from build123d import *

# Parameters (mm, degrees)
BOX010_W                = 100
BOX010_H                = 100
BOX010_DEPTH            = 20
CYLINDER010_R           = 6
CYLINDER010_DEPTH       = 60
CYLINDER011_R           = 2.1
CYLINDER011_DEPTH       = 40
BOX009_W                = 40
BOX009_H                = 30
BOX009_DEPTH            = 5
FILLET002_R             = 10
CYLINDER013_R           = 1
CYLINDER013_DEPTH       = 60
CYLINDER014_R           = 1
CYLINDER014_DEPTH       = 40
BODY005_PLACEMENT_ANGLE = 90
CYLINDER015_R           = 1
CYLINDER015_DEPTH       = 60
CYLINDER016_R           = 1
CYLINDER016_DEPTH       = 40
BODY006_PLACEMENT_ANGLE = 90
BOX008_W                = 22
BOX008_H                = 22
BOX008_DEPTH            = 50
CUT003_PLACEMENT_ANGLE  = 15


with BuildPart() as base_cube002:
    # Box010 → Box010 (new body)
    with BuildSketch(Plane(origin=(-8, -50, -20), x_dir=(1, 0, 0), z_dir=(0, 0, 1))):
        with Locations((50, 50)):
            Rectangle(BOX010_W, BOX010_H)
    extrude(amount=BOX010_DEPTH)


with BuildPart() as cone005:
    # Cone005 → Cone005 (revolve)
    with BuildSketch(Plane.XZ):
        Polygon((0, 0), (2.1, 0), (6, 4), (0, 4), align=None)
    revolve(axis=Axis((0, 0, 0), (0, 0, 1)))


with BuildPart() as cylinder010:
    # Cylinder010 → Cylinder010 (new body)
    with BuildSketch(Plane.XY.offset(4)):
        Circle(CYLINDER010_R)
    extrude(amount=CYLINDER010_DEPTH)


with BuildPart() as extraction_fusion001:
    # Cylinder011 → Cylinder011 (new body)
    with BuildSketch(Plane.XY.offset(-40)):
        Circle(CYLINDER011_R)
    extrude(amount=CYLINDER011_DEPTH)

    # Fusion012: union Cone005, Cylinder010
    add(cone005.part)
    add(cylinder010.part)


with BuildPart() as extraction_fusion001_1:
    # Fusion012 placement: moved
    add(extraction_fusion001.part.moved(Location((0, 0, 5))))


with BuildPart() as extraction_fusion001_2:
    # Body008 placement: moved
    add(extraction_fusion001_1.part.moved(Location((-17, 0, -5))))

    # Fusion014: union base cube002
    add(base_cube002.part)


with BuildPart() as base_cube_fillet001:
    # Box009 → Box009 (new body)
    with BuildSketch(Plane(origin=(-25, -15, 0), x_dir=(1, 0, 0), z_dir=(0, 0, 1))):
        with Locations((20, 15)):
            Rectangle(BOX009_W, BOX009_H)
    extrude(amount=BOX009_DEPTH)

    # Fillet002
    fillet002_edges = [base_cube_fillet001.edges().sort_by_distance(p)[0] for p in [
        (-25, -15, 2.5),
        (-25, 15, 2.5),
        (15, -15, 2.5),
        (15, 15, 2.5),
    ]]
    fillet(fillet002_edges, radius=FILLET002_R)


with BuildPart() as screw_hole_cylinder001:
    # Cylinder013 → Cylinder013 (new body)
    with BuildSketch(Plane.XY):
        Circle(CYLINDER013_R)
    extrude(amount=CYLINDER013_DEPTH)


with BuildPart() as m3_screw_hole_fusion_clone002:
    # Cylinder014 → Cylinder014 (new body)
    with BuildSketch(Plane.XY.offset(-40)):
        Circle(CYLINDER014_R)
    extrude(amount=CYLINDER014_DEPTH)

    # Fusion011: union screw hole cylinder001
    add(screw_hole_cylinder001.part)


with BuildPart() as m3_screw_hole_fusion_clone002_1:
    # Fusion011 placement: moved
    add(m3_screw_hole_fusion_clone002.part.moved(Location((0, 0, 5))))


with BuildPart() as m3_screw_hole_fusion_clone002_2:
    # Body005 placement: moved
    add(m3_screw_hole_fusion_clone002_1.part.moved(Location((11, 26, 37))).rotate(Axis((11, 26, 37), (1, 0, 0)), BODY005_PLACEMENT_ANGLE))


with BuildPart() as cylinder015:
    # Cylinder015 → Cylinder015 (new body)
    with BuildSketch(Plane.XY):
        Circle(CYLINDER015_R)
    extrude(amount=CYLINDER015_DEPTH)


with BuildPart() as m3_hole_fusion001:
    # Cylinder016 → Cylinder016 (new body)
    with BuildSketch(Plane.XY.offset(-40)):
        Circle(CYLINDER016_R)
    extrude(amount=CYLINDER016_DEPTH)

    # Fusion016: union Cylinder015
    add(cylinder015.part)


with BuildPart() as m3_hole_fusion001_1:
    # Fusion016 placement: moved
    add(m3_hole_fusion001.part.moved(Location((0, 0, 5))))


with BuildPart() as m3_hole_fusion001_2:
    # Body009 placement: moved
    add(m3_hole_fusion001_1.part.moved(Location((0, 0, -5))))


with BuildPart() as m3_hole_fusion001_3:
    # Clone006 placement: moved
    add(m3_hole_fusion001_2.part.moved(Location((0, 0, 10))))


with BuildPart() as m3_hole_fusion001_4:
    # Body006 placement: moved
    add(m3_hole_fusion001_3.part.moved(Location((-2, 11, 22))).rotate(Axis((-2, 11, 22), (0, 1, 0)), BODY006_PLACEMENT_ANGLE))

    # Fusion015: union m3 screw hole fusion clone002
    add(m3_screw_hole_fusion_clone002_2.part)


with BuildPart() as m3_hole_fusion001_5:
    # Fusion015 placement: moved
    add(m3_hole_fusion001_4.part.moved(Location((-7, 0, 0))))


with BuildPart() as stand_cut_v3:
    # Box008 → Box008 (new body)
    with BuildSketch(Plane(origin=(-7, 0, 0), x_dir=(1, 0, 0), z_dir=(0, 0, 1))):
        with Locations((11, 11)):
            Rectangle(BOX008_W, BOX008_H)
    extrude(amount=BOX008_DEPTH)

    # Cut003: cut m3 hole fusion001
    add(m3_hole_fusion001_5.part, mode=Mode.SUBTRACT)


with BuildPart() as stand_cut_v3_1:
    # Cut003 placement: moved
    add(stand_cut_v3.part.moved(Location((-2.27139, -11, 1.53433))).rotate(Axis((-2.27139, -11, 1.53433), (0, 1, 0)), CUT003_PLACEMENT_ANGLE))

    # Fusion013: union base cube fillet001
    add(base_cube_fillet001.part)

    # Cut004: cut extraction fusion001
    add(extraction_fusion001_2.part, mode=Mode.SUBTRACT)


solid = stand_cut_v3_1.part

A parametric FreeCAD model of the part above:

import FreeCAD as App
import Part
import Sketcher

V = App.Vector
Q = App.Units.Quantity


def edges_at(feature, points):
    """Names of the edges that pass closest to the given points."""
    edges = feature.Shape.Edges
    near = lambda p: min(range(len(edges)), key=lambda i: edges[i].distToShape(Part.Vertex(*p))[0])
    return sorted({f"Edge{near(p) + 1}" for p in points})

doc = App.newDocument("Part")
body = doc.addObject("PartDesign::Body", "Body")

sketch1 = body.newObject("Sketcher::SketchObject", "Sketch")
sketch1.AttachmentSupport = (doc.getObject("XY_Plane"), [""])
sketch1.MapMode = "FlatFace"
sketch1.AttachmentOffset = App.Placement(V(0, 0, -20), App.Rotation())
sketch1.addGeometry(Part.LineSegment(V(-8, 50, 0), V(-8, -50, 0)), False)
sketch1.addGeometry(Part.LineSegment(V(-8, -50, 0), V(92, -50, 0)), False)
sketch1.addGeometry(Part.LineSegment(V(92, -50, 0), V(92, 50, 0)), False)
sketch1.addGeometry(Part.LineSegment(V(92, 50, 0), V(-8, 50, 0)), False)
sketch1.addConstraint(Sketcher.Constraint("Coincident", 0, 2, 1, 1))
sketch1.addConstraint(Sketcher.Constraint("Coincident", 1, 2, 2, 1))
sketch1.addConstraint(Sketcher.Constraint("Coincident", 2, 2, 3, 1))
sketch1.addConstraint(Sketcher.Constraint("Coincident", 3, 2, 0, 1))
sketch1.addConstraint(Sketcher.Constraint("Vertical", 0))
sketch1.addConstraint(Sketcher.Constraint("Horizontal", 1))
sketch1.addConstraint(Sketcher.Constraint("Vertical", 2))
sketch1.addConstraint(Sketcher.Constraint("Horizontal", 3))
sketch1.addConstraint(Sketcher.Constraint("Equal", 3, 0))
sketch1.addConstraint(Sketcher.Constraint("DistanceX", 1, 1, 1, 2, Q("100 mm")))
sketch1.addConstraint(Sketcher.Constraint("DistanceX", 0, 2, -1, 1, Q("8 mm")))
sketch1.addConstraint(Sketcher.Constraint("DistanceY", 0, 2, -1, 1, Q("50 mm")))
pad1 = body.newObject("PartDesign::Pad", "Pad")
pad1.Profile = sketch1
pad1.Length = 20
body2 = doc.addObject("PartDesign::Body", "Body001")

sketch2 = body2.newObject("Sketcher::SketchObject", "Sketch001")
sketch2.AttachmentSupport = (doc.getObject("XZ_Plane001"), [""])
sketch2.MapMode = "FlatFace"
sketch2.addGeometry(Part.LineSegment(V(0, 0, 0), V(2.1, 0, 0)), False)
sketch2.addGeometry(Part.LineSegment(V(2.1, 0, 0), V(6, 4, 0)), False)
sketch2.addGeometry(Part.LineSegment(V(6, 4, 0), V(0, 4, 0)), False)
sketch2.addGeometry(Part.LineSegment(V(0, 4, 0), V(0, 0, 0)), False)
sketch2.addConstraint(Sketcher.Constraint("Coincident", 0, 2, 1, 1))
sketch2.addConstraint(Sketcher.Constraint("Coincident", 1, 2, 2, 1))
sketch2.addConstraint(Sketcher.Constraint("Coincident", 2, 2, 3, 1))
sketch2.addConstraint(Sketcher.Constraint("Coincident", 3, 2, 0, 1))
sketch2.addConstraint(Sketcher.Constraint("Horizontal", 0))
sketch2.addConstraint(Sketcher.Constraint("Horizontal", 2))
sketch2.addConstraint(Sketcher.Constraint("Vertical", 3))
sketch2.addConstraint(Sketcher.Constraint("Coincident", 3, 2, -1, 1))
sketch2.addConstraint(Sketcher.Constraint("DistanceX", 2, 2, 2, 1, Q("6 mm")))
sketch2.addConstraint(Sketcher.Constraint("DistanceY", 3, 2, 3, 1, Q("4 mm")))
sketch2.addConstraint(Sketcher.Constraint("DistanceX", 0, 1, 0, 2, Q("2.1 mm")))
revolution = body2.newObject("PartDesign::Revolution", "Revolution")
revolution.Profile = sketch2
revolution.ReferenceAxis = (sketch2, ["V_Axis"])
revolution.Angle = 360
body3 = doc.addObject("PartDesign::Body", "Body002")

sketch3 = body3.newObject("Sketcher::SketchObject", "Sketch002")
sketch3.AttachmentSupport = (doc.getObject("XY_Plane002"), [""])
sketch3.MapMode = "FlatFace"
sketch3.AttachmentOffset = App.Placement(V(0, 0, 4), App.Rotation())
sketch3.addGeometry(Part.Circle(V(0, 0, 0), V(0, 0, 1), 6), False)
sketch3.addConstraint(Sketcher.Constraint("Coincident", 0, 3, -1, 1))
sketch3.addConstraint(Sketcher.Constraint("Diameter", 0, Q("12 mm")))
pad2 = body3.newObject("PartDesign::Pad", "Pad001")
pad2.Profile = sketch3
pad2.Length = 60
body4 = doc.addObject("PartDesign::Body", "Body003")

sketch4 = body4.newObject("Sketcher::SketchObject", "Sketch003")
sketch4.AttachmentSupport = (doc.getObject("XY_Plane003"), [""])
sketch4.MapMode = "FlatFace"
sketch4.AttachmentOffset = App.Placement(V(0, 0, -40), App.Rotation())
sketch4.addGeometry(Part.Circle(V(0, 0, 0), V(0, 0, 1), 2.1), False)
sketch4.addConstraint(Sketcher.Constraint("Coincident", 0, 3, -1, 1))
sketch4.addConstraint(Sketcher.Constraint("Diameter", 0, Q("4.2 mm")))
pad3 = body4.newObject("PartDesign::Pad", "Pad002")
pad3.Profile = sketch4
pad3.Length = 40
doc.recompute()

boolean = body4.newObject("PartDesign::Boolean", "Boolean")
boolean.Type = "Fuse"
boolean.addObjects([body2])
doc.recompute()

boolean2 = body4.newObject("PartDesign::Boolean", "Boolean001")
boolean2.Type = "Fuse"
boolean2.addObjects([body3])
body5 = doc.addObject("PartDesign::Body", "Body004")
doc.recompute()

body4.Placement = App.Placement(V(0, 0, 5), App.Rotation(V(0, 0, 1), 0))
boolean3 = body5.newObject("PartDesign::Boolean", "Boolean002")
boolean3.Type = "Fuse"
boolean3.addObjects([body4])
body6 = doc.addObject("PartDesign::Body", "Body005")
body6.AllowCompound = True
doc.recompute()

body5.Placement = App.Placement(V(-17, 0, -5), App.Rotation(V(0, 0, 1), 0))
boolean4 = body6.newObject("PartDesign::Boolean", "Boolean003")
boolean4.Type = "Fuse"
boolean4.addObjects([body5])
doc.recompute()

boolean5 = body6.newObject("PartDesign::Boolean", "Boolean004")
boolean5.Type = "Fuse"
boolean5.addObjects([body])
body7 = doc.addObject("PartDesign::Body", "Body006")

sketch5 = body7.newObject("Sketcher::SketchObject", "Sketch004")
sketch5.AttachmentSupport = (doc.getObject("XY_Plane006"), [""])
sketch5.MapMode = "FlatFace"
sketch5.addGeometry(Part.LineSegment(V(-25, 15, 0), V(-25, -15, 0)), False)
sketch5.addGeometry(Part.LineSegment(V(-25, -15, 0), V(15, -15, 0)), False)
sketch5.addGeometry(Part.LineSegment(V(15, -15, 0), V(15, 15, 0)), False)
sketch5.addGeometry(Part.LineSegment(V(15, 15, 0), V(-25, 15, 0)), False)
sketch5.addConstraint(Sketcher.Constraint("Coincident", 0, 2, 1, 1))
sketch5.addConstraint(Sketcher.Constraint("Coincident", 1, 2, 2, 1))
sketch5.addConstraint(Sketcher.Constraint("Coincident", 2, 2, 3, 1))
sketch5.addConstraint(Sketcher.Constraint("Coincident", 3, 2, 0, 1))
sketch5.addConstraint(Sketcher.Constraint("Vertical", 0))
sketch5.addConstraint(Sketcher.Constraint("Horizontal", 1))
sketch5.addConstraint(Sketcher.Constraint("Vertical", 2))
sketch5.addConstraint(Sketcher.Constraint("Horizontal", 3))
sketch5.addConstraint(Sketcher.Constraint("DistanceX", 1, 1, 1, 2, Q("40 mm")))
sketch5.addConstraint(Sketcher.Constraint("DistanceY", 0, 2, 0, 1, Q("30 mm")))
sketch5.addConstraint(Sketcher.Constraint("DistanceX", 0, 2, -1, 1, Q("25 mm")))
sketch5.addConstraint(Sketcher.Constraint("DistanceY", 0, 2, -1, 1, Q("15 mm")))
pad4 = body7.newObject("PartDesign::Pad", "Pad003")
pad4.Profile = sketch5
pad4.Length = 5
doc.recompute()

fillet = body7.newObject("PartDesign::Fillet", "Fillet")
fillet.Base = (pad4, edges_at(pad4, [
    (-25, -15, 2.5),
    (-25, 15, 2.5),
    (15, -15, 2.5),
    (15, 15, 2.5),
]))
fillet.Radius = 10
body8 = doc.addObject("PartDesign::Body", "Body007")

sketch6 = body8.newObject("Sketcher::SketchObject", "Sketch005")
sketch6.AttachmentSupport = (doc.getObject("XY_Plane007"), [""])
sketch6.MapMode = "FlatFace"
sketch6.addGeometry(Part.Circle(V(0, 0, 0), V(0, 0, 1), 1), False)
sketch6.addConstraint(Sketcher.Constraint("Coincident", 0, 3, -1, 1))
sketch6.addConstraint(Sketcher.Constraint("Diameter", 0, Q("2 mm")))
pad5 = body8.newObject("PartDesign::Pad", "Pad004")
pad5.Profile = sketch6
pad5.Length = 60
body9 = doc.addObject("PartDesign::Body", "Body008")

sketch7 = body9.newObject("Sketcher::SketchObject", "Sketch006")
sketch7.AttachmentSupport = (doc.getObject("XY_Plane008"), [""])
sketch7.MapMode = "FlatFace"
sketch7.AttachmentOffset = App.Placement(V(0, 0, -40), App.Rotation())
sketch7.addGeometry(Part.Circle(V(0, 0, 0), V(0, 0, 1), 1), False)
sketch7.addConstraint(Sketcher.Constraint("Coincident", 0, 3, -1, 1))
sketch7.addConstraint(Sketcher.Constraint("Diameter", 0, Q("2 mm")))
pad6 = body9.newObject("PartDesign::Pad", "Pad005")
pad6.Profile = sketch7
pad6.Length = 40
doc.recompute()

boolean6 = body9.newObject("PartDesign::Boolean", "Boolean005")
boolean6.Type = "Fuse"
boolean6.addObjects([body8])
body10 = doc.addObject("PartDesign::Body", "Body009")
doc.recompute()

body9.Placement = App.Placement(V(0, 0, 5), App.Rotation(V(0, 0, 1), 0))
boolean7 = body10.newObject("PartDesign::Boolean", "Boolean006")
boolean7.Type = "Fuse"
boolean7.addObjects([body9])
body11 = doc.addObject("PartDesign::Body", "Body010")
doc.recompute()

body10.Placement = App.Placement(V(11, 26, 37), App.Rotation(V(1, 0, 0), 90))
boolean8 = body11.newObject("PartDesign::Boolean", "Boolean007")
boolean8.Type = "Fuse"
boolean8.addObjects([body10])
body12 = doc.addObject("PartDesign::Body", "Body011")

sketch8 = body12.newObject("Sketcher::SketchObject", "Sketch007")
sketch8.AttachmentSupport = (doc.getObject("XY_Plane011"), [""])
sketch8.MapMode = "FlatFace"
sketch8.addGeometry(Part.Circle(V(0, 0, 0), V(0, 0, 1), 1), False)
sketch8.addConstraint(Sketcher.Constraint("Coincident", 0, 3, -1, 1))
sketch8.addConstraint(Sketcher.Constraint("Diameter", 0, Q("2 mm")))
pad7 = body12.newObject("PartDesign::Pad", "Pad006")
pad7.Profile = sketch8
pad7.Length = 60
body13 = doc.addObject("PartDesign::Body", "Body012")

sketch9 = body13.newObject("Sketcher::SketchObject", "Sketch008")
sketch9.AttachmentSupport = (doc.getObject("XY_Plane012"), [""])
sketch9.MapMode = "FlatFace"
sketch9.AttachmentOffset = App.Placement(V(0, 0, -40), App.Rotation())
sketch9.addGeometry(Part.Circle(V(0, 0, 0), V(0, 0, 1), 1), False)
sketch9.addConstraint(Sketcher.Constraint("Coincident", 0, 3, -1, 1))
sketch9.addConstraint(Sketcher.Constraint("Diameter", 0, Q("2 mm")))
pad8 = body13.newObject("PartDesign::Pad", "Pad007")
pad8.Profile = sketch9
pad8.Length = 40
doc.recompute()

boolean9 = body13.newObject("PartDesign::Boolean", "Boolean008")
boolean9.Type = "Fuse"
boolean9.addObjects([body12])
body14 = doc.addObject("PartDesign::Body", "Body013")
doc.recompute()

body13.Placement = App.Placement(V(0, 0, 5), App.Rotation(V(0, 0, 1), 0))
boolean10 = body14.newObject("PartDesign::Boolean", "Boolean009")
boolean10.Type = "Fuse"
boolean10.addObjects([body13])
body15 = doc.addObject("PartDesign::Body", "Body014")
doc.recompute()

body14.Placement = App.Placement(V(0, 0, -5), App.Rotation(V(0, 0, 1), 0))
boolean11 = body15.newObject("PartDesign::Boolean", "Boolean010")
boolean11.Type = "Fuse"
boolean11.addObjects([body14])
body16 = doc.addObject("PartDesign::Body", "Body015")
doc.recompute()

body15.Placement = App.Placement(V(0, 0, 10), App.Rotation(V(0, 0, 1), 0))
boolean12 = body16.newObject("PartDesign::Boolean", "Boolean011")
boolean12.Type = "Fuse"
boolean12.addObjects([body15])
body17 = doc.addObject("PartDesign::Body", "Body016")
body17.AllowCompound = True
doc.recompute()

body16.Placement = App.Placement(V(-2, 11, 22), App.Rotation(V(0, 1, 0), 90))
boolean13 = body17.newObject("PartDesign::Boolean", "Boolean012")
boolean13.Type = "Fuse"
boolean13.addObjects([body16])
doc.recompute()

boolean14 = body17.newObject("PartDesign::Boolean", "Boolean013")
boolean14.Type = "Fuse"
boolean14.addObjects([body11])
body18 = doc.addObject("PartDesign::Body", "Body017")
body18.AllowCompound = True
doc.recompute()

body17.Placement = App.Placement(V(-7, 0, 0), App.Rotation(V(0, 0, 1), 0))
boolean15 = body18.newObject("PartDesign::Boolean", "Boolean014")
boolean15.Type = "Fuse"
boolean15.addObjects([body17])
body19 = doc.addObject("PartDesign::Body", "Body018")

sketch10 = body19.newObject("Sketcher::SketchObject", "Sketch009")
sketch10.AttachmentSupport = (doc.getObject("XY_Plane018"), [""])
sketch10.MapMode = "FlatFace"
sketch10.addGeometry(Part.LineSegment(V(-7, 22, 0), V(-7, 0, 0)), False)
sketch10.addGeometry(Part.LineSegment(V(-7, 0, 0), V(15, 0, 0)), False)
sketch10.addGeometry(Part.LineSegment(V(15, 0, 0), V(15, 22, 0)), False)
sketch10.addGeometry(Part.LineSegment(V(15, 22, 0), V(-7, 22, 0)), False)
sketch10.addConstraint(Sketcher.Constraint("Coincident", 0, 2, 1, 1))
sketch10.addConstraint(Sketcher.Constraint("Coincident", 1, 2, 2, 1))
sketch10.addConstraint(Sketcher.Constraint("Coincident", 2, 2, 3, 1))
sketch10.addConstraint(Sketcher.Constraint("Coincident", 3, 2, 0, 1))
sketch10.addConstraint(Sketcher.Constraint("Vertical", 0))
sketch10.addConstraint(Sketcher.Constraint("Horizontal", 1))
sketch10.addConstraint(Sketcher.Constraint("Vertical", 2))
sketch10.addConstraint(Sketcher.Constraint("Horizontal", 3))
sketch10.addConstraint(Sketcher.Constraint("PointOnObject", 0, 2, -1))
sketch10.addConstraint(Sketcher.Constraint("Equal", 3, 0))
sketch10.addConstraint(Sketcher.Constraint("DistanceX", 1, 1, 1, 2, Q("22 mm")))
sketch10.addConstraint(Sketcher.Constraint("DistanceX", 0, 2, -1, 1, Q("7 mm")))
pad9 = body19.newObject("PartDesign::Pad", "Pad008")
pad9.Profile = sketch10
pad9.Length = 50
doc.recompute()

boolean16 = body19.newObject("PartDesign::Boolean", "Boolean015")
boolean16.Type = "Cut"
boolean16.addObjects([body18])
body20 = doc.addObject("PartDesign::Body", "Body019")
doc.recompute()

body19.Placement = App.Placement(V(-2.27139, -11, 1.53433), App.Rotation(V(0, 1, 0), 15))
boolean17 = body20.newObject("PartDesign::Boolean", "Boolean016")
boolean17.Type = "Fuse"
boolean17.addObjects([body19])
doc.recompute()

boolean18 = body20.newObject("PartDesign::Boolean", "Boolean017")
boolean18.Type = "Fuse"
boolean18.addObjects([body7])
doc.recompute()

boolean19 = body20.newObject("PartDesign::Boolean", "Boolean018")
boolean19.Type = "Cut"
boolean19.addObjects([body6])

doc.recompute()
